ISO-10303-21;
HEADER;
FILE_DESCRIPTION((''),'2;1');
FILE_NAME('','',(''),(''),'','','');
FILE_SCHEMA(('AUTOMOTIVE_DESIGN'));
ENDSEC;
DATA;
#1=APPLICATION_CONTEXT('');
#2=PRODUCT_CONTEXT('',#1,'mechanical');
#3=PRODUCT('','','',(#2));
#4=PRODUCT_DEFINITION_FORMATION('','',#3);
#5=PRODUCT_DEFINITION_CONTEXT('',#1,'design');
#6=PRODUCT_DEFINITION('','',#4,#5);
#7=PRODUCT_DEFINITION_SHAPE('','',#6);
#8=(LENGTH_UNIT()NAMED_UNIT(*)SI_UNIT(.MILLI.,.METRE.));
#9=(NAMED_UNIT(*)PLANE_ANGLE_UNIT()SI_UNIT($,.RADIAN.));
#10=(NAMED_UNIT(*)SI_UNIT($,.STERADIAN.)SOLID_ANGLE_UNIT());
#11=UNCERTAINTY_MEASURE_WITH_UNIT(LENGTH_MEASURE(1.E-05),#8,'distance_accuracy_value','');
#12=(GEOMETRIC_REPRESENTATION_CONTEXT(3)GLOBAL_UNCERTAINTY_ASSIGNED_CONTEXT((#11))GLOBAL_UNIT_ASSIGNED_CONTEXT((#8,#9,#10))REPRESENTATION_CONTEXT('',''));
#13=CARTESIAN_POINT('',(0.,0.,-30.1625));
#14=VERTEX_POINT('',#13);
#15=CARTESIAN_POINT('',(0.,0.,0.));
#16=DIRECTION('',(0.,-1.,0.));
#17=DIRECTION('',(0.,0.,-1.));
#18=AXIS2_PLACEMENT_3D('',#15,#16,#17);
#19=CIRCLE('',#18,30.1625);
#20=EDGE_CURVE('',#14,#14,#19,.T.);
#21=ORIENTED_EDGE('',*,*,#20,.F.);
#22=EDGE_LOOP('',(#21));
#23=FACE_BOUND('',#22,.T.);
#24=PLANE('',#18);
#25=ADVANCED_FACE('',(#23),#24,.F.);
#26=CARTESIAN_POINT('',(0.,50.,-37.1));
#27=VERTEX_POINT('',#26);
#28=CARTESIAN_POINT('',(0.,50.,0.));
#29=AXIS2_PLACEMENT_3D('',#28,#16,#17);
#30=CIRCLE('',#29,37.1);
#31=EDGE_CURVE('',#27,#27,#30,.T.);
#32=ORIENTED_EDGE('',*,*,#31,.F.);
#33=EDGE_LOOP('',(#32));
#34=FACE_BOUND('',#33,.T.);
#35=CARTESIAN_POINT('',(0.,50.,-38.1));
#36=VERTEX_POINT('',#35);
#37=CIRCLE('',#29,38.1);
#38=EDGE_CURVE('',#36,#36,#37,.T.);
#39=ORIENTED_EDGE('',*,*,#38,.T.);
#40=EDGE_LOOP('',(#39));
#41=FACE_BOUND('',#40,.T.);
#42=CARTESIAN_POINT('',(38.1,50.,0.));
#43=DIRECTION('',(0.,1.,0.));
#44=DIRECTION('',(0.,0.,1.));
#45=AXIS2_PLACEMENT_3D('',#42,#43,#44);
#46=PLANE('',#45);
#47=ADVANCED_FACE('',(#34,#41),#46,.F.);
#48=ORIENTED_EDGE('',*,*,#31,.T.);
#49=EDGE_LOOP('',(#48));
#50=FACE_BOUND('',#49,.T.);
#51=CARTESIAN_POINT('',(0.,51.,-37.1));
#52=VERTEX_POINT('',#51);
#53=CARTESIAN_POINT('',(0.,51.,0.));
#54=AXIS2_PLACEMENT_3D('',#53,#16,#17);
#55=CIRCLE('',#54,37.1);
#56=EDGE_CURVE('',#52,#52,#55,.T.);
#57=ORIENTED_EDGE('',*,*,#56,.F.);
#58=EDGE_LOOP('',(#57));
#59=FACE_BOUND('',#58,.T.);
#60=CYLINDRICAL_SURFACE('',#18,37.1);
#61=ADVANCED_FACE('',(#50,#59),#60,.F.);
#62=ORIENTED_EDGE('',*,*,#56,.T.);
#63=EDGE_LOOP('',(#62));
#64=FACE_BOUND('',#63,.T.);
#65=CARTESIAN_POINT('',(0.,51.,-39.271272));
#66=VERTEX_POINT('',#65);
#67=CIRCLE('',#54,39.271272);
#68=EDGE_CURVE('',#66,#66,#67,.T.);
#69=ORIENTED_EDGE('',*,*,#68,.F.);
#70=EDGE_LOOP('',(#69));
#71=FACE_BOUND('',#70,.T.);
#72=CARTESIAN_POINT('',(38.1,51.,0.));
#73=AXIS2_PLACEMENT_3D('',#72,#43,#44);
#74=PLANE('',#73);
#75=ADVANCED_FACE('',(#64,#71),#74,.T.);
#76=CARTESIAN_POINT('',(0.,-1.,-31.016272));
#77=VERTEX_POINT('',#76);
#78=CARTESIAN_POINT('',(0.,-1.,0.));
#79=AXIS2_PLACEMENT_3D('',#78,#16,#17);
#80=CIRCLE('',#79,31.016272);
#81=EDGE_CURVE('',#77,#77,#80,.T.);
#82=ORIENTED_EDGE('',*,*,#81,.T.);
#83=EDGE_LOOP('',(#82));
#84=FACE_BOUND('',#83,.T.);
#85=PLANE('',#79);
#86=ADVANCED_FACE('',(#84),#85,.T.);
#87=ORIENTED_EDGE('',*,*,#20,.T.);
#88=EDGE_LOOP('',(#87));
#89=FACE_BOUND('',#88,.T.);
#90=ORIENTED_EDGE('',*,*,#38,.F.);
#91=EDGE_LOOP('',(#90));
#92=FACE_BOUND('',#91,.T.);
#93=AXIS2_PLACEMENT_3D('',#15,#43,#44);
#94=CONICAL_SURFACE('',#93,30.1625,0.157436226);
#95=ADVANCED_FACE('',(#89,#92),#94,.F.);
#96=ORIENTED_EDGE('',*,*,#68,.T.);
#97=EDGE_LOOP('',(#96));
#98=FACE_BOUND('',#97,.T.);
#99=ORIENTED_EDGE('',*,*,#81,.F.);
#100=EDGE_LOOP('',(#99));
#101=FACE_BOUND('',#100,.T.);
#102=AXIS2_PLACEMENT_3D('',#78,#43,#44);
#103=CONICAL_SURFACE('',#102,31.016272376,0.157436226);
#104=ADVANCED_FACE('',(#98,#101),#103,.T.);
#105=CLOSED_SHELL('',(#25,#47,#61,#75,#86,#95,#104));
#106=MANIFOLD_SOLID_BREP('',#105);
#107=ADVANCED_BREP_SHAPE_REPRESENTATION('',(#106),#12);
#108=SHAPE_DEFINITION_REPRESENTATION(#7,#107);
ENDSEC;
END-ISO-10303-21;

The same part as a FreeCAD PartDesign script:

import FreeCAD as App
import Part
import Sketcher

V = App.Vector
Q = App.Units.Quantity

doc = App.newDocument("Part")
body = doc.addObject("PartDesign::Body", "Body")

sketch1 = doc.addObject("Sketcher::SketchObject", "Sketch")
body.addObject(sketch1)
sketch1.AttachmentSupport = (doc.XY_Plane, [""])
sketch1.MapMode = "FlatFace"
sketch1.addGeometry([
    Part.LineSegment(V(30.1625, 0, 0), V(0, 0, 0)),
    Part.LineSegment(V(0, 0, 0), V(0, -1, 0)),
    Part.LineSegment(V(0, -1, 0), V(31.016272, -1, 0)),
    Part.LineSegment(V(31.016272, -1, 0), V(39.271272, 51, 0)),
    Part.LineSegment(V(39.271272, 51, 0), V(37.1, 51, 0)),
    Part.LineSegment(V(37.1, 51, 0), V(37.1, 50, 0)),
    Part.LineSegment(V(37.1, 50, 0), V(38.1, 50, 0)),
    Part.LineSegment(V(38.1, 50, 0), V(30.1625, 0, 0)),
], False)
sketch1.addConstraint([
    Sketcher.Constraint("Coincident", 0, 2, 1, 1),
    Sketcher.Constraint("Coincident", 1, 2, 2, 1),
    Sketcher.Constraint("Coincident", 2, 2, 3, 1),
    Sketcher.Constraint("Coincident", 3, 2, 4, 1),
    Sketcher.Constraint("Coincident", 4, 2, 5, 1),
    Sketcher.Constraint("Coincident", 5, 2, 6, 1),
    Sketcher.Constraint("Coincident", 6, 2, 7, 1),
    Sketcher.Constraint("Coincident", 7, 2, 0, 1),
    Sketcher.Constraint("Horizontal", 0),
    Sketcher.Constraint("Vertical", 1),
    Sketcher.Constraint("Horizontal", 2),
    Sketcher.Constraint("Horizontal", 4),
    Sketcher.Constraint("Vertical", 5),
    Sketcher.Constraint("Horizontal", 6),
    Sketcher.Constraint("Coincident", 0, 2, -1, 1),
    Sketcher.Constraint("Parallel", 3, 7),
    Sketcher.Constraint("Equal", 6, 1),
    Sketcher.Constraint("Equal", 1, 5),
    Sketcher.Constraint("DistanceX", 6, 1, 6, 2, Q("1 mm")),
    Sketcher.Constraint("DistanceY", -1, 1, 3, 2, Q("51 mm")),
    Sketcher.Constraint("DistanceX", -1, 1, 4, 2, Q("37.1 mm")),
    Sketcher.Constraint("DistanceX", 0, 2, 0, 1, Q("30.1625 mm")),
    Sketcher.Constraint("DistanceX", 2, 1, 2, 2, Q("31.016272 mm")),
])
revolution = doc.addObject("PartDesign::Revolution", "Revolution")
body.addObject(revolution)
revolution.Profile = sketch1
revolution.ReferenceAxis = (sketch1, ["V_Axis"])
revolution.Angle = 360

doc.recompute()
